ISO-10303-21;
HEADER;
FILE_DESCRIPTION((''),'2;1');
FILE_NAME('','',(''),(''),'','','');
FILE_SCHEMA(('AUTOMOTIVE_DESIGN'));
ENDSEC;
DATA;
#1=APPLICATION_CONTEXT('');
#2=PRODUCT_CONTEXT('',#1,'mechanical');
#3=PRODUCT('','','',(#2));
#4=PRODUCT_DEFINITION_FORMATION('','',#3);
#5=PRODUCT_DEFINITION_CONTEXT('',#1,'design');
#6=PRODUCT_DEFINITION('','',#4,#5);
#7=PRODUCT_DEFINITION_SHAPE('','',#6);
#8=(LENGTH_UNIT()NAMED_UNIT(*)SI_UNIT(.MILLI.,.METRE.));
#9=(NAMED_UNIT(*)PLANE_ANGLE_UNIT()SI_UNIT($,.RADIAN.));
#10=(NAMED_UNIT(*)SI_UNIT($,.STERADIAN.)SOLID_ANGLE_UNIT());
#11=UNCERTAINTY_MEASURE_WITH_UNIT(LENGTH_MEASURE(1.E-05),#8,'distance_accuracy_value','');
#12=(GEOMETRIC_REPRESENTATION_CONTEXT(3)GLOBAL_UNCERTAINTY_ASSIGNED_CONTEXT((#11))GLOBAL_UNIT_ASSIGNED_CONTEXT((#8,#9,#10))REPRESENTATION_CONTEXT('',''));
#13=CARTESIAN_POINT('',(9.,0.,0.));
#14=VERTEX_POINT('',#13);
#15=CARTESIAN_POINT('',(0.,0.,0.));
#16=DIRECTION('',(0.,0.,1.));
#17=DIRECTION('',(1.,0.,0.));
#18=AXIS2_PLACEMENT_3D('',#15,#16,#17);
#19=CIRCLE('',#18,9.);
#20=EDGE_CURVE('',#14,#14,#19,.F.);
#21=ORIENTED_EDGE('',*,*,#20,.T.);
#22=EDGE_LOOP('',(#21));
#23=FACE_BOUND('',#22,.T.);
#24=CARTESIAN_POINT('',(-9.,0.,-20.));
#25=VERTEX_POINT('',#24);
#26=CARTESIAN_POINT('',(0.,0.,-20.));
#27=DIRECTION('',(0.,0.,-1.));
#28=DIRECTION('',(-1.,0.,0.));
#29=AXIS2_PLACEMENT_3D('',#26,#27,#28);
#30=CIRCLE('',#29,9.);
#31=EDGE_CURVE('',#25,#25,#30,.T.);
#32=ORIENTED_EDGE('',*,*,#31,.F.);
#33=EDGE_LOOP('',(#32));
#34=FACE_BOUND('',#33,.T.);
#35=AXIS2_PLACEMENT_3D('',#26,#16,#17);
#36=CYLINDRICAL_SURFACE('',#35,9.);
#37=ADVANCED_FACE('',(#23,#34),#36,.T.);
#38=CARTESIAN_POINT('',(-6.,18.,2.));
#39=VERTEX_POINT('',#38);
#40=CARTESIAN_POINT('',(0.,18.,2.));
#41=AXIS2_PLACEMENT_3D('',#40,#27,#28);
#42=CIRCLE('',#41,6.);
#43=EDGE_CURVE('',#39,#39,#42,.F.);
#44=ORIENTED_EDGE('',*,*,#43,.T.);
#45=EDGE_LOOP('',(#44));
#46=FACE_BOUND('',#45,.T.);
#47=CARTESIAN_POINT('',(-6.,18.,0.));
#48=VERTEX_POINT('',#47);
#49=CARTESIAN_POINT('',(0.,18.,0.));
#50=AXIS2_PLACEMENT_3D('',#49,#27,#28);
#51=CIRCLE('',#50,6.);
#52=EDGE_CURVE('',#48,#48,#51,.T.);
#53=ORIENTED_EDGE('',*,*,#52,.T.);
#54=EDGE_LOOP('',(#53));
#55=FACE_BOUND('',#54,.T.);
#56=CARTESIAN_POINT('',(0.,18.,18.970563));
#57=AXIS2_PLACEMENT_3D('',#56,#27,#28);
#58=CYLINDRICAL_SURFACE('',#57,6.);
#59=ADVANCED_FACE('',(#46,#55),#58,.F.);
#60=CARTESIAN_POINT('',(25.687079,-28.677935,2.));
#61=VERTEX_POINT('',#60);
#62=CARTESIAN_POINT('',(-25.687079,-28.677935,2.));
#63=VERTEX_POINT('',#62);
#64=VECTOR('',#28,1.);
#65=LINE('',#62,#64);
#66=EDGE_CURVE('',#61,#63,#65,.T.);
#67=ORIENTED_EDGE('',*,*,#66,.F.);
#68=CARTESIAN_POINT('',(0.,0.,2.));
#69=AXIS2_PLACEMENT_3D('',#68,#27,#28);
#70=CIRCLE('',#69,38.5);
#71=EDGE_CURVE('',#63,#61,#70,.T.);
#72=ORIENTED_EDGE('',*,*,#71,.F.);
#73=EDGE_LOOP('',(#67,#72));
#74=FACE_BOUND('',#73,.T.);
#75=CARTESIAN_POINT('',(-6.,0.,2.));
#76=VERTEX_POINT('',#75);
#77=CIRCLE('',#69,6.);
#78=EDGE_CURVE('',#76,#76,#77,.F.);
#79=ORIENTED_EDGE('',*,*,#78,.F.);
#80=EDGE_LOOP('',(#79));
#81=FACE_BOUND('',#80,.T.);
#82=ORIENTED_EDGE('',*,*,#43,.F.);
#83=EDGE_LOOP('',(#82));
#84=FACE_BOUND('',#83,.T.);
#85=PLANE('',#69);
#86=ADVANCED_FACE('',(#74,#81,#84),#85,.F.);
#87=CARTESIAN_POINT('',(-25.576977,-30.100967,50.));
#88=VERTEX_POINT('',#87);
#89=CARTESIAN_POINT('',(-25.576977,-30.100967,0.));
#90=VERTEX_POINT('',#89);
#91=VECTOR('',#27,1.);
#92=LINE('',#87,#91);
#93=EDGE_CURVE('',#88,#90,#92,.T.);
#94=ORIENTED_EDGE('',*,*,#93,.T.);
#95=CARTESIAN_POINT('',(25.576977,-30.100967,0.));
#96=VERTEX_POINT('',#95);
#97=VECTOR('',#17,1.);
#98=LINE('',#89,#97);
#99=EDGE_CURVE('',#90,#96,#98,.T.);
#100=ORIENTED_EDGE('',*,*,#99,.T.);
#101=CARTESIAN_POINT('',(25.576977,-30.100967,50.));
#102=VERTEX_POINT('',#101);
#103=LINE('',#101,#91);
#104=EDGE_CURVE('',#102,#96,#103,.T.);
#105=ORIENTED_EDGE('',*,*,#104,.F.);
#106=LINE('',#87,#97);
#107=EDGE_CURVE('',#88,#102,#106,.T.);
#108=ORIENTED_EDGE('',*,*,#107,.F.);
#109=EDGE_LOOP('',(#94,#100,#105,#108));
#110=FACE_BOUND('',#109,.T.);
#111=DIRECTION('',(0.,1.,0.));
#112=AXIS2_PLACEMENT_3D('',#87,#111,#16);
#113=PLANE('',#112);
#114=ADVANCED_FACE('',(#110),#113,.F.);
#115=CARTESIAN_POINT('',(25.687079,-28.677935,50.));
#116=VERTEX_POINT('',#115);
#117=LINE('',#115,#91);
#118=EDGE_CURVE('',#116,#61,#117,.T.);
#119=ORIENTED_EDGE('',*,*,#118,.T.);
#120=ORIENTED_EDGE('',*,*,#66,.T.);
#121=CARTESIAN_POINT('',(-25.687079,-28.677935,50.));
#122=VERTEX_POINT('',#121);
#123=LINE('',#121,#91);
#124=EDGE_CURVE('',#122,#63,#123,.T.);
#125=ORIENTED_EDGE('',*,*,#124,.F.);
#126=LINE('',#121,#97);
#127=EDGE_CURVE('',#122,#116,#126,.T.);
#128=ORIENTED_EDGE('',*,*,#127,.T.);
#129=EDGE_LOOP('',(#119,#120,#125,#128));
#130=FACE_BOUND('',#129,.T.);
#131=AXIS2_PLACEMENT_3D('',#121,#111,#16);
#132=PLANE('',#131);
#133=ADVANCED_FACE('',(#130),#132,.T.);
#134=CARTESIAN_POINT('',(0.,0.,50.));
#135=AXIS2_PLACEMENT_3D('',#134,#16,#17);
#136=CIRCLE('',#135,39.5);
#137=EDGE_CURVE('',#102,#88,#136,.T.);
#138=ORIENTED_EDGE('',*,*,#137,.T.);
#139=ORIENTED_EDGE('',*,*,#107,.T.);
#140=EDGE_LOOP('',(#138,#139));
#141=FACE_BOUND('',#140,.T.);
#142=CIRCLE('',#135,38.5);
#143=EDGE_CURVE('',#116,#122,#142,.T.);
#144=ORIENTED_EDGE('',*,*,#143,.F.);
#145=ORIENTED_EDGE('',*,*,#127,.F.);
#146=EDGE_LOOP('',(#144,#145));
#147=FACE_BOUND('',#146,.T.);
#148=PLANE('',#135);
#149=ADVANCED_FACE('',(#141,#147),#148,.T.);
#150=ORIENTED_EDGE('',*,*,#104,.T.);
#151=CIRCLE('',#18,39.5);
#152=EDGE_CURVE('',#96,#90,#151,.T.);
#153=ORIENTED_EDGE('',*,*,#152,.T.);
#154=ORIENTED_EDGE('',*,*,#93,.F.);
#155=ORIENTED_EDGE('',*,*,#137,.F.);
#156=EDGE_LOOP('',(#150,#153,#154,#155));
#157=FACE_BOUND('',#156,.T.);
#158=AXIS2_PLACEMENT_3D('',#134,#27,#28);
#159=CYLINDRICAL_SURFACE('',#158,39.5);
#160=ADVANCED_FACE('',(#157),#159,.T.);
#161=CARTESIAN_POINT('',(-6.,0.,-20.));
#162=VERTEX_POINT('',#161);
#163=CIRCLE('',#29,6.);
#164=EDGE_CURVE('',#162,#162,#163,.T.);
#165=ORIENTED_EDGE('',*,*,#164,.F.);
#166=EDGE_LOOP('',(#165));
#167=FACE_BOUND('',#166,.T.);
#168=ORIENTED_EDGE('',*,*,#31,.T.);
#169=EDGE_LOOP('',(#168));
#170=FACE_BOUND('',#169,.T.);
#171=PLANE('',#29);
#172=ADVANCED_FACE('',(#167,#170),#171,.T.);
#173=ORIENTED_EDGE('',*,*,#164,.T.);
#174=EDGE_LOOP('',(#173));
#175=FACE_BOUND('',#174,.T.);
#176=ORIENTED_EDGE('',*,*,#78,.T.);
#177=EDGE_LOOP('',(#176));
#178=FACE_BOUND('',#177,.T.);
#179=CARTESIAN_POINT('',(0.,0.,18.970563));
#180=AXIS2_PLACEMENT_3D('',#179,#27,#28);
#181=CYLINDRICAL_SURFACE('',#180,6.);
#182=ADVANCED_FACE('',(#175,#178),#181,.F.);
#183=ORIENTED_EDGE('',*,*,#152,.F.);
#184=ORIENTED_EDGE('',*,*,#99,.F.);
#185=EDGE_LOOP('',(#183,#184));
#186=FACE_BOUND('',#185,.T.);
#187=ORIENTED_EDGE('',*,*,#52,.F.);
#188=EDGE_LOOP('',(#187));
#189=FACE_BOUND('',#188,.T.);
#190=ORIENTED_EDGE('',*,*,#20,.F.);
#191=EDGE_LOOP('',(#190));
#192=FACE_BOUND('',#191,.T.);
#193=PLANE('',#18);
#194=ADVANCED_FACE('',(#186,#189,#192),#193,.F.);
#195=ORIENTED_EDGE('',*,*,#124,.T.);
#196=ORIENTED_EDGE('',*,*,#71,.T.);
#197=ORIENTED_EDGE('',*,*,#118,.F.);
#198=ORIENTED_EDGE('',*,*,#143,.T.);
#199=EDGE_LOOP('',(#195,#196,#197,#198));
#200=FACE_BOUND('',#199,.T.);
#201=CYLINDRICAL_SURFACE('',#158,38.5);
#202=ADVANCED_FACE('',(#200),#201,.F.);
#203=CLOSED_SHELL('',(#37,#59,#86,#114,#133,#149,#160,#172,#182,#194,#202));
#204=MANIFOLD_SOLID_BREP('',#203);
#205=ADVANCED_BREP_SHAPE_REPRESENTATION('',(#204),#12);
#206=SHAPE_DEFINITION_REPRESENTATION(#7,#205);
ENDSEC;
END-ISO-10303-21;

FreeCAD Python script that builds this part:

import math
import FreeCAD as App
import Part
import Sketcher
from FreeCAD import Vector

doc = App.newDocument("Part")
body = doc.addObject("PartDesign::Body", "Body")

# Sketch on XY plane
sketch1 = body.newObject("Sketcher::SketchObject", "Sketch")
sketch1.AttachmentSupport = (doc.getObject("XY_Plane"), [""])
sketch1.MapMode = "FlatFace"
sketch1.addGeometry(Part.LineSegment(Vector(-25.576977, -30.100967, 0), Vector(25.576977, -30.100967, 0)), False)
sketch1.addGeometry(Part.ArcOfCircle(Part.Circle(Vector(0, 0, 0), Vector(0, 0, 1), 39.5), math.radians(-49.645239), math.radians(229.645239)), False)
sketch1.addGeometry(Part.LineSegment(Vector(25.687079, -28.677935, 0), Vector(-25.687079, -28.677935, 0)), False)
sketch1.addGeometry(Part.ArcOfCircle(Part.Circle(Vector(0, 0, 0), Vector(0, 0, 1), 38.5), math.radians(-48.148917), math.radians(228.148917)), False)
sketch1.addConstraint(Sketcher.Constraint("Coincident", 0, 1, 1, 2))
sketch1.addConstraint(Sketcher.Constraint("Coincident", 1, 1, 0, 2))
sketch1.addConstraint(Sketcher.Constraint("Coincident", 2, 1, 3, 1))
sketch1.addConstraint(Sketcher.Constraint("Coincident", 3, 2, 2, 2))
sketch1.addConstraint(Sketcher.Constraint("Horizontal", 0))
sketch1.addConstraint(Sketcher.Constraint("Horizontal", 2))
sketch1.addConstraint(Sketcher.Constraint("Coincident", 1, 3, -1, 1))
sketch1.addConstraint(Sketcher.Constraint("Coincident", 3, 3, -1, 1))
sketch1.addConstraint(Sketcher.Constraint("Radius", 1, 39.5))
sketch1.addConstraint(Sketcher.Constraint("Radius", 3, 38.5))
sketch1.addConstraint(Sketcher.Constraint("DistanceX", 1, 1, 2, 1, 0.110101))
sketch1.addConstraint(Sketcher.Constraint("DistanceX", 0, 1, 0, 2, 51.153955))
pad1 = body.newObject("PartDesign::Pad", "Pad")
pad1.Profile = sketch1
pad1.Length = 50

# Sketch on XY plane
sketch2 = body.newObject("Sketcher::SketchObject", "Sketch001")
sketch2.AttachmentSupport = (doc.getObject("XY_Plane"), [""])
sketch2.MapMode = "FlatFace"
sketch2.addGeometry(Part.LineSegment(Vector(25.687079, -28.677935, 0), Vector(-25.687079, -28.677935, 0)), False)
sketch2.addGeometry(Part.ArcOfCircle(Part.Circle(Vector(0, 0, 0), Vector(0, 0, 1), 38.5), math.radians(-48.148917), math.radians(228.148917)), False)
sketch2.addConstraint(Sketcher.Constraint("Coincident", 0, 1, 1, 1))
sketch2.addConstraint(Sketcher.Constraint("Coincident", 1, 2, 0, 2))
sketch2.addConstraint(Sketcher.Constraint("Horizontal", 0))
sketch2.addConstraint(Sketcher.Constraint("Coincident", 1, 3, -1, 1))
sketch2.addConstraint(Sketcher.Constraint("Radius", 1, 38.5))
sketch2.addConstraint(Sketcher.Constraint("DistanceX", 0, 2, 0, 1, 51.374158))
pad2 = body.newObject("PartDesign::Pad", "Pad001")
pad2.Profile = sketch2
pad2.Length = 2

# Sketch on XY plane
sketch3 = body.newObject("Sketcher::SketchObject", "Sketch002")
sketch3.AttachmentSupport = (doc.getObject("XY_Plane"), [""])
sketch3.MapMode = "FlatFace"
sketch3.addGeometry(Part.Circle(Vector(0, 0, 0), Vector(0, 0, 1), 6), False)
sketch3.addConstraint(Sketcher.Constraint("Coincident", 0, 3, -1, 1))
sketch3.addConstraint(Sketcher.Constraint("Diameter", 0, 12.0))
pocket1 = body.newObject("PartDesign::Pocket", "Pocket")
pocket1.Profile = sketch3
pocket1.Length = 2
pocket1.Reversed = True

# Sketch on XY plane
sketch4 = body.newObject("Sketcher::SketchObject", "Sketch003")
sketch4.AttachmentSupport = (doc.getObject("XY_Plane"), [""])
sketch4.MapMode = "FlatFace"
sketch4.addGeometry(Part.Circle(Vector(0, 18, 0), Vector(0, 0, 1), 6), False)
sketch4.addConstraint(Sketcher.Constraint("PointOnObject", 0, 3, -2))
sketch4.addConstraint(Sketcher.Constraint("Diameter", 0, 12.0))
sketch4.addConstraint(Sketcher.Constraint("DistanceY", -1, 1, 0, 3, 18.0))
pocket2 = body.newObject("PartDesign::Pocket", "Pocket001")
pocket2.Profile = sketch4
pocket2.Length = 2
pocket2.Reversed = True

# Sketch on XY plane
sketch5 = body.newObject("Sketcher::SketchObject", "Sketch004")
sketch5.AttachmentSupport = (doc.getObject("XY_Plane"), [""])
sketch5.MapMode = "FlatFace"
sketch5.AttachmentOffset = App.Placement(Vector(0, 0, -20), App.Rotation())
sketch5.addGeometry(Part.Circle(Vector(0, 0, 0), Vector(0, 0, 1), 9), False)
sketch5.addGeometry(Part.Circle(Vector(0, 0, 0), Vector(0, 0, 1), 6), False)
sketch5.addConstraint(Sketcher.Constraint("Coincident", 0, 3, -1, 1))
sketch5.addConstraint(Sketcher.Constraint("Coincident", 1, 3, -1, 1))
sketch5.addConstraint(Sketcher.Constraint("Diameter", 0, 18.0))
sketch5.addConstraint(Sketcher.Constraint("Diameter", 1, 12.0))
pad3 = body.newObject("PartDesign::Pad", "Pad002")
pad3.Profile = sketch5
pad3.Length = 20

doc.recompute()
